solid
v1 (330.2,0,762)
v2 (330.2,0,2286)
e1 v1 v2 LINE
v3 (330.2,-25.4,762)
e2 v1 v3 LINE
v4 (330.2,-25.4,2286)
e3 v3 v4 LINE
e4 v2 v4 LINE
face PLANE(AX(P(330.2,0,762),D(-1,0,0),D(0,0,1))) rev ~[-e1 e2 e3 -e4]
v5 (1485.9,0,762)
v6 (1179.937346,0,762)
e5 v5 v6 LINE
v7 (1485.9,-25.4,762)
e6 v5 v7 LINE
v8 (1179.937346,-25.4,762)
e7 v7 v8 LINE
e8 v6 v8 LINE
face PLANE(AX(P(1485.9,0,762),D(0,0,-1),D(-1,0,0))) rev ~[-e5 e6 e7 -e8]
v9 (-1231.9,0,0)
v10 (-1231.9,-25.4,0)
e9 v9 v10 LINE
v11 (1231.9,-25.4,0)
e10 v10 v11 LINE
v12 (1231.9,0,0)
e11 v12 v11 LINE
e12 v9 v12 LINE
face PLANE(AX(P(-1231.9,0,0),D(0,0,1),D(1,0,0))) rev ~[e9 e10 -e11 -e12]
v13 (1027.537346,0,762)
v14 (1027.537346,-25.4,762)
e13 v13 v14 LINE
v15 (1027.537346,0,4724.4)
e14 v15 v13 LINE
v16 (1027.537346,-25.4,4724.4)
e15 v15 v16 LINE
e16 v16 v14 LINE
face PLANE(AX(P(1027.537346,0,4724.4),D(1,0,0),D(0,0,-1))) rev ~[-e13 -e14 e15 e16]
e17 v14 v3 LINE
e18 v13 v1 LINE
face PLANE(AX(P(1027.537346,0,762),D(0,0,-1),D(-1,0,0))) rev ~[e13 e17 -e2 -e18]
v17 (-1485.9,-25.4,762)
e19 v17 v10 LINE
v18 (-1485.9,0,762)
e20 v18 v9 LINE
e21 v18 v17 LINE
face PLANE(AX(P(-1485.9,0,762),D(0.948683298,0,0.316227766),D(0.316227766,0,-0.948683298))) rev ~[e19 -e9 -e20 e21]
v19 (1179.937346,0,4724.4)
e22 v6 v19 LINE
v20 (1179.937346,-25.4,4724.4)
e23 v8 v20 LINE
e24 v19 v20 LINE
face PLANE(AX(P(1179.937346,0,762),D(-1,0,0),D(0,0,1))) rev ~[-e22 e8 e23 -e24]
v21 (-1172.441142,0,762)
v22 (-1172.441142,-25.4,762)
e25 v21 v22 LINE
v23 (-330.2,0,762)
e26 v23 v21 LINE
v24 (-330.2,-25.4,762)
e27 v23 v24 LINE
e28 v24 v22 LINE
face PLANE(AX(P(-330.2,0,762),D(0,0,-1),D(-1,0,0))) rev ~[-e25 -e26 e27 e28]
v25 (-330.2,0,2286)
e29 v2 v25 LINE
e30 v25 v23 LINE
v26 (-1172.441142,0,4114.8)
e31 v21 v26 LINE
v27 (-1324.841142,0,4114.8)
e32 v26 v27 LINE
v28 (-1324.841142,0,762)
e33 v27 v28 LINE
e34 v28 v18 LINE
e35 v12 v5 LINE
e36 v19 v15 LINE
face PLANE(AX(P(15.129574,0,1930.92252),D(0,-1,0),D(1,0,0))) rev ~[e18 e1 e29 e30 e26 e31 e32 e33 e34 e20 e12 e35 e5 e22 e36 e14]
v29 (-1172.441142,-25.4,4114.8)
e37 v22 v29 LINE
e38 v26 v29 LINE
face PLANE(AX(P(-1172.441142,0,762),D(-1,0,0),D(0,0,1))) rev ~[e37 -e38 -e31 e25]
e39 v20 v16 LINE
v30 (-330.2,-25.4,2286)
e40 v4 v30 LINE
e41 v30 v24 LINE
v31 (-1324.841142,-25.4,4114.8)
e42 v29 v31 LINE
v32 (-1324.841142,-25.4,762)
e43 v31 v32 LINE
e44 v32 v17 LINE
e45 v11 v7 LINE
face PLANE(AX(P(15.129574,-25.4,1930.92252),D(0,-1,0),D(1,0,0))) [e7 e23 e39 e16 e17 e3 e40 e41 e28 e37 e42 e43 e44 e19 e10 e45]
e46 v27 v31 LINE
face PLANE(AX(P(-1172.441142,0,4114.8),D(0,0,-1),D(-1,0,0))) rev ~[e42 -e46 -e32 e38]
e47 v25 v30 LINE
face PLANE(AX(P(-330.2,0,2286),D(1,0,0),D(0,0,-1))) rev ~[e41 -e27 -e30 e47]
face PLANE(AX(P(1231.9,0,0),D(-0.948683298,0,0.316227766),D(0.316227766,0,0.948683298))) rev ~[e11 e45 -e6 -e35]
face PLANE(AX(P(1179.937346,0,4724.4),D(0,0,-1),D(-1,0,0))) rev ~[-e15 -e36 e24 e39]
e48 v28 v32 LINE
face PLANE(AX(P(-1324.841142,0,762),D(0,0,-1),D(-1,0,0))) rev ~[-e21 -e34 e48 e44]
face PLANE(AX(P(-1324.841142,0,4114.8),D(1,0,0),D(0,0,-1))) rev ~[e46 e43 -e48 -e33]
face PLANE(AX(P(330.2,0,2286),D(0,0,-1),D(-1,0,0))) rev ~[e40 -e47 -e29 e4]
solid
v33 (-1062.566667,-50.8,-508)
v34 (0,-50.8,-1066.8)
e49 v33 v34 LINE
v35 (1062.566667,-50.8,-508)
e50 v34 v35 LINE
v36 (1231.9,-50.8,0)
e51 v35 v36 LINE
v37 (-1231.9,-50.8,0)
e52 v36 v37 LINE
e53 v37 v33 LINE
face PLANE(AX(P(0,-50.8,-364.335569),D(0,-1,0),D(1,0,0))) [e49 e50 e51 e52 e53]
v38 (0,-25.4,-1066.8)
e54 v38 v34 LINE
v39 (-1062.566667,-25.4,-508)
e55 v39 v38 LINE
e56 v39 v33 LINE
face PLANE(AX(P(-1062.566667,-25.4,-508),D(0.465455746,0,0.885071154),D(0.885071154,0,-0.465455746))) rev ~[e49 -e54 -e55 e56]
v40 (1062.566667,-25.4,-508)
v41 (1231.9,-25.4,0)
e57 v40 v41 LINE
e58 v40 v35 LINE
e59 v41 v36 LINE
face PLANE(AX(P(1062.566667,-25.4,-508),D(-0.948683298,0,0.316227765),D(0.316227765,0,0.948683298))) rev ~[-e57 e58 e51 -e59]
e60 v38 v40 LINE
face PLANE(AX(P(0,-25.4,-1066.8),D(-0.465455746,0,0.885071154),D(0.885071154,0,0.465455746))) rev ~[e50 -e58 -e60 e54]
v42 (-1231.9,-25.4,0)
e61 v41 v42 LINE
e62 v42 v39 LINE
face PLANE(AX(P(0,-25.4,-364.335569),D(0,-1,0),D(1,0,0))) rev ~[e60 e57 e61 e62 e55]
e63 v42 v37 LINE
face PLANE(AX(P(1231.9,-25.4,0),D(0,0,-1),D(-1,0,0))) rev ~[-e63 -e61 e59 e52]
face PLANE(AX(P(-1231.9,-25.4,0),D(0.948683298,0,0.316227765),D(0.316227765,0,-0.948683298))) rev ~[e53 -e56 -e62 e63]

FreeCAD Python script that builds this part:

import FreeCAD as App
import Part
import Sketcher

V = App.Vector
Q = App.Units.Quantity

doc = App.newDocument("Part")
body = doc.addObject("PartDesign::Body", "Body")

sketch1 = body.newObject("Sketcher::SketchObject", "Sketch")
sketch1.AttachmentSupport = (doc.getObject("XZ_Plane"), [""])
sketch1.MapMode = "FlatFace"
sketch1.addGeometry([
    Part.LineSegment(V(-1325, 762, 0), V(-1486, 762, 0)),
    Part.LineSegment(V(-1486, 762, 0), V(-1232, 0, 0)),
    Part.LineSegment(V(-1232, 0, 0), V(1232, 0, 0)),
    Part.LineSegment(V(1232, 0, 0), V(1486, 762, 0)),
    Part.LineSegment(V(1486, 762, 0), V(1180, 762, 0)),
    Part.LineSegment(V(1180, 762, 0), V(1180, 4724, 0)),
    Part.LineSegment(V(1180, 4724, 0), V(1028, 4724, 0)),
    Part.LineSegment(V(1028, 4724, 0), V(1028, 762, 0)),
    Part.LineSegment(V(1028, 762, 0), V(330, 762, 0)),
    Part.LineSegment(V(330, 762, 0), V(330, 2286, 0)),
    Part.LineSegment(V(330, 2286, 0), V(-330, 2286, 0)),
    Part.LineSegment(V(-330, 2286, 0), V(-330, 762, 0)),
    Part.LineSegment(V(-330, 762, 0), V(-1172, 762, 0)),
    Part.LineSegment(V(-1172, 762, 0), V(-1172, 4115, 0)),
    Part.LineSegment(V(-1172, 4115, 0), V(-1325, 4115, 0)),
    Part.LineSegment(V(-1325, 4115, 0), V(-1325, 762, 0)),
], False)
sketch1.addConstraint([
    Sketcher.Constraint("Coincident", 0, 2, 1, 1),
    Sketcher.Constraint("Coincident", 1, 2, 2, 1),
    Sketcher.Constraint("Coincident", 2, 2, 3, 1),
    Sketcher.Constraint("Coincident", 3, 2, 4, 1),
    Sketcher.Constraint("Coincident", 4, 2, 5, 1),
    Sketcher.Constraint("Coincident", 5, 2, 6, 1),
    Sketcher.Constraint("Coincident", 6, 2, 7, 1),
    Sketcher.Constraint("Coincident", 7, 2, 8, 1),
    Sketcher.Constraint("Coincident", 8, 2, 9, 1),
    Sketcher.Constraint("Coincident", 9, 2, 10, 1),
    Sketcher.Constraint("Coincident", 10, 2, 11, 1),
    Sketcher.Constraint("Coincident", 11, 2, 12, 1),
    Sketcher.Constraint("Coincident", 12, 2, 13, 1),
    Sketcher.Constraint("Coincident", 13, 2, 14, 1),
    Sketcher.Constraint("Coincident", 14, 2, 15, 1),
    Sketcher.Constraint("Coincident", 15, 2, 0, 1),
    Sketcher.Constraint("Horizontal", 0),
    Sketcher.Constraint("Horizontal", 2),
    Sketcher.Constraint("Horizontal", 4),
    Sketcher.Constraint("Vertical", 5),
    Sketcher.Constraint("Horizontal", 6),
    Sketcher.Constraint("Vertical", 7),
    Sketcher.Constraint("Horizontal", 8),
    Sketcher.Constraint("Vertical", 9),
    Sketcher.Constraint("Horizontal", 10),
    Sketcher.Constraint("Vertical", 11),
    Sketcher.Constraint("Horizontal", 12),
    Sketcher.Constraint("Vertical", 13),
    Sketcher.Constraint("Horizontal", 14),
    Sketcher.Constraint("Vertical", 15),
    Sketcher.Constraint("Symmetric", 1, 2, 2, 2, -1, 1),
    Sketcher.Constraint("Symmetric", 0, 2, 3, 2, -2),
    Sketcher.Constraint("Symmetric", 8, 2, 11, 2, -2),
    Sketcher.Constraint("Horizontal", 4, 2, 7, 2),
    Sketcher.Constraint("Equal", 6, 14),
    Sketcher.Constraint("DistanceX", 2, 1, 2, 2, Q("97 in")),
    Sketcher.Constraint("DistanceX", 6, 2, 6, 1, Q("6 in")),
    Sketcher.Constraint("DistanceX", 10, 2, 10, 1, Q("26 in")),
    Sketcher.Constraint("DistanceY", 5, 1, 5, 2, Q("156 in")),
    Sketcher.Constraint("DistanceY", 9, 1, 9, 2, Q("60 in")),
    Sketcher.Constraint("DistanceY", 13, 1, 13, 2, Q("132 in")),
    Sketcher.Constraint("DistanceY", -1, 1, 0, 2, Q("30 in")),
    Sketcher.Constraint("DistanceX", 0, 2, 1, 2, Q("10 in")),
    Sketcher.Constraint("DistanceX", 0, 2, 0, 1, Q("6.3408999 in")),
    Sketcher.Constraint("DistanceX", 4, 2, 4, 1, Q("305.962654 mm")),
])
pad1 = body.newObject("PartDesign::Pad", "Pad")
pad1.Profile = sketch1
pad1.Length = Q("1 in")
body2 = doc.addObject("PartDesign::Body", "Body001")

sketch2 = body2.newObject("Sketcher::SketchObject", "Sketch001")
sketch2.AttachmentSupport = (doc.getObject("XZ_Plane001"), [""])
sketch2.MapMode = "FlatFace"
sketch2.AttachmentOffset = App.Placement(V(0, 0, 1 * 25.4), App.Rotation())
sketch2.addGeometry([
    Part.LineSegment(V(1232, 0, 0), V(-1232, 0, 0)),
    Part.LineSegment(V(-1232, 0, 0), V(-1063, -508, 0)),
    Part.LineSegment(V(-1063, -508, 0), V(0, -1067, 0)),
    Part.LineSegment(V(0, -1067, 0), V(1063, -508, 0)),
    Part.LineSegment(V(1063, -508, 0), V(1232, 0, 0)),
], False)
sketch2.addConstraint([
    Sketcher.Constraint("Coincident", 0, 2, 1, 1),
    Sketcher.Constraint("Coincident", 1, 2, 2, 1),
    Sketcher.Constraint("Coincident", 2, 2, 3, 1),
    Sketcher.Constraint("Coincident", 3, 2, 4, 1),
    Sketcher.Constraint("Coincident", 4, 2, 0, 1),
    Sketcher.Constraint("Horizontal", 0),
    Sketcher.Constraint("Symmetric", 0, 2, 4, 2, -1, 1),
    Sketcher.Constraint("Symmetric", 1, 2, 3, 2, -2),
    Sketcher.Constraint("PointOnObject", 2, 2, -2),
    Sketcher.Constraint("DistanceX", 0, 2, 0, 1, Q("97 in")),
    Sketcher.Constraint("DistanceY", 1, 2, -1, 1, Q("20 in")),
    Sketcher.Constraint("DistanceY", 2, 2, -1, 1, Q("42 in")),
    Sketcher.Constraint("Distance", 1, Q("535.479017 mm")),
])
pad2 = body2.newObject("PartDesign::Pad", "Pad001")
pad2.Profile = sketch2
pad2.Length = Q("1 in")

doc.recompute()
